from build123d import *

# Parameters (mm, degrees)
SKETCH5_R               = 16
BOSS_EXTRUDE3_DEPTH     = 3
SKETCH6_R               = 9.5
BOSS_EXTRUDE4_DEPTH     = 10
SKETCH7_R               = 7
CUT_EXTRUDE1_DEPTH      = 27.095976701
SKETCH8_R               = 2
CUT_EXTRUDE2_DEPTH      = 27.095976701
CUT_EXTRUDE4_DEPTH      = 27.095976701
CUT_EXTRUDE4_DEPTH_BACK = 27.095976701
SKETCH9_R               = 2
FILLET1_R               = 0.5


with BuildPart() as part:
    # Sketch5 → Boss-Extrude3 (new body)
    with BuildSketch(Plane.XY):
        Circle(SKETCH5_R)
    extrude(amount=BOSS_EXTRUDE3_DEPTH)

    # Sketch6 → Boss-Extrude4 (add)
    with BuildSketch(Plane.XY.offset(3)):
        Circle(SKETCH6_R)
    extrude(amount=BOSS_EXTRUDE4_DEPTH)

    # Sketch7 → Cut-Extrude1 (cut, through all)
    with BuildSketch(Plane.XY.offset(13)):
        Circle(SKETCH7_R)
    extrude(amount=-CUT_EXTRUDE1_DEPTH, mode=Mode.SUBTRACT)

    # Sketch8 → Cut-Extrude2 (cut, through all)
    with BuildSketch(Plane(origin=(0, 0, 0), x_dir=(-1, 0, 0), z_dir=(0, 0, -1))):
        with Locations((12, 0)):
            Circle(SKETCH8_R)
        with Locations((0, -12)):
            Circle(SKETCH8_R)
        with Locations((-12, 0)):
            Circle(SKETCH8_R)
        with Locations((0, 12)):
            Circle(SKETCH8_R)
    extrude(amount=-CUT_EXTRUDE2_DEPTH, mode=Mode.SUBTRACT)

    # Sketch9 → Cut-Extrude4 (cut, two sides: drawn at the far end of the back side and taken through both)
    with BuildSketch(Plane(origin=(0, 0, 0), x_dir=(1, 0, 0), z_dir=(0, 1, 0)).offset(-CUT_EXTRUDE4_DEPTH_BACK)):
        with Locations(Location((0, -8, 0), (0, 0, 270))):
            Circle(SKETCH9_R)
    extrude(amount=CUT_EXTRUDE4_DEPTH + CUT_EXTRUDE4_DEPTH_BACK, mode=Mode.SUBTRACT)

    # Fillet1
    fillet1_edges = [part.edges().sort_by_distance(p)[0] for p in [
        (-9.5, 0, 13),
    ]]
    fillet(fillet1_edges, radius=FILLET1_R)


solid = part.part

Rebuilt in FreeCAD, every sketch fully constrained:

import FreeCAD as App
import Part
import Sketcher


def edges_at(feature, points):
    """Names of the edges that pass closest to the given points."""
    edges = feature.Shape.Edges
    near = lambda p: min(range(len(edges)), key=lambda i: edges[i].distToShape(Part.Vertex(*p))[0])
    return sorted({f"Edge{near(p) + 1}" for p in points})

doc = App.newDocument("Part")
params = doc.addObject("Spreadsheet::Sheet", "Params")
for row, (alias, value) in enumerate([
    ("sketch1_diameter", "32 mm"),
    ("pad1_length", "3 mm"),
    ("sketch2_diameter", "19 mm"),
    ("pad2_length", "10 mm"),
    ("sketch3_diameter", "14 mm"),
    ("sketch4_diameter", "4 mm"),
    ("sketch5_diameter", "4 mm"),
    ("fillet_radius", "0.5 mm"),
], start=1):
    params.set(f"A{row}", alias)
    params.set(f"B{row}", "=" + value)
    params.setAlias(f"B{row}", alias)

body = doc.addObject("PartDesign::Body", "Body")

# Sketch on XY plane
sketch1 = body.newObject("Sketcher::SketchObject", "Sketch")
sketch1.AttachmentSupport = (doc.getObject("XY_Plane"), [""])
sketch1.MapMode = "FlatFace"
sketch1.addGeometry(Part.Circle(App.Vector(0, 0, 0), App.Vector(0, 0, 1), 16), False)
sketch1.addConstraint([
    Sketcher.Constraint("Coincident", 0, 3, -1, 1),
    Sketcher.Constraint("Diameter", 0, 32.0),
])
sketch1.setExpression("Constraints[1]", "Params.sketch1_diameter")
pad1 = body.newObject("PartDesign::Pad", "Pad")
pad1.Profile = sketch1
pad1.setExpression("Length", "Params.pad1_length")

# Sketch on XY plane
sketch2 = body.newObject("Sketcher::SketchObject", "Sketch001")
sketch2.AttachmentSupport = (doc.getObject("XY_Plane"), [""])
sketch2.MapMode = "FlatFace"
sketch2.AttachmentOffset = App.Placement(App.Vector(0, 0, 3), App.Rotation())
sketch2.addGeometry(Part.Circle(App.Vector(0, 0, 0), App.Vector(0, 0, 1), 10), False)
sketch2.addConstraint([
    Sketcher.Constraint("Coincident", 0, 3, -1, 1),
    Sketcher.Constraint("Diameter", 0, 19.0),
])
sketch2.setExpression("Constraints[1]", "Params.sketch2_diameter")
pad2 = body.newObject("PartDesign::Pad", "Pad001")
pad2.Profile = sketch2
pad2.setExpression("Length", "Params.pad2_length")

# Sketch on XY plane
sketch3 = body.newObject("Sketcher::SketchObject", "Sketch002")
sketch3.AttachmentSupport = (doc.getObject("XY_Plane"), [""])
sketch3.MapMode = "FlatFace"
sketch3.AttachmentOffset = App.Placement(App.Vector(0, 0, 13), App.Rotation())
sketch3.addGeometry(Part.Circle(App.Vector(0, 0, 0), App.Vector(0, 0, 1), 7), False)
sketch3.addConstraint([
    Sketcher.Constraint("Coincident", 0, 3, -1, 1),
    Sketcher.Constraint("Diameter", 0, 14.0),
])
sketch3.setExpression("Constraints[1]", "Params.sketch3_diameter")
pocket1 = body.newObject("PartDesign::Pocket", "Pocket")
pocket1.Profile = sketch3
pocket1.Type = "ThroughAll"

# Sketch on XY plane
sketch4 = body.newObject("Sketcher::SketchObject", "Sketch003")
sketch4.AttachmentSupport = (doc.getObject("XY_Plane"), [""])
sketch4.MapMode = "FlatFace"
sketch4.addGeometry([
    Part.Circle(App.Vector(-12, 0, 0), App.Vector(0, 0, 1), 2),
    Part.Circle(App.Vector(0, -12, 0), App.Vector(0, 0, 1), 2),
    Part.Circle(App.Vector(12, 0, 0), App.Vector(0, 0, 1), 2),
    Part.Circle(App.Vector(0, 12, 0), App.Vector(0, 0, 1), 2),
], False)
sketch4.addConstraint([
    Sketcher.Constraint("Equal", 0, 1),
    Sketcher.Constraint("Equal", 1, 2),
    Sketcher.Constraint("Equal", 2, 3),
    Sketcher.Constraint("Symmetric", 0, 3, 2, 3, -1, 1),
    Sketcher.Constraint("Symmetric", 1, 3, 3, 3, -1, 1),
    Sketcher.Constraint("PointOnObject", 0, 3, -1),
    Sketcher.Constraint("PointOnObject", 1, 3, -2),
    Sketcher.Constraint("Diameter", 0, 4.0),
    Sketcher.Constraint("DistanceX", 0, 3, -1, 1, 12.0),
    Sketcher.Constraint("DistanceY", 1, 3, -1, 1, 12.0),
])
sketch4.setExpression("Constraints[7]", "Params.sketch4_diameter")
pocket2 = body.newObject("PartDesign::Pocket", "Pocket001")
pocket2.Profile = sketch4
pocket2.Type = "ThroughAll"
pocket2.Reversed = True

# Sketch on XZ plane
sketch5 = body.newObject("Sketcher::SketchObject", "Sketch004")
sketch5.AttachmentSupport = (doc.getObject("XZ_Plane"), [""])
sketch5.MapMode = "FlatFace"
sketch5.addGeometry(Part.Circle(App.Vector(0, 8, 0), App.Vector(0, 0, 1), 2), False)
sketch5.addConstraint([
    Sketcher.Constraint("PointOnObject", 0, 3, -2),
    Sketcher.Constraint("Diameter", 0, 4.0),
    Sketcher.Constraint("DistanceY", -1, 1, 0, 3, 8.0),
])
sketch5.setExpression("Constraints[1]", "Params.sketch5_diameter")
pocket3 = body.newObject("PartDesign::Pocket", "Pocket002")
pocket3.Profile = sketch5
pocket3.Type = "ThroughAll"
pocket3.Midplane = True
doc.recompute()

fillet = body.newObject("PartDesign::Fillet", "Fillet")
fillet.Base = (pocket3, edges_at(pocket3, [(-9.5, 0, 13)]))
fillet.setExpression("Radius", "Params.fillet_radius")

doc.recompute()
